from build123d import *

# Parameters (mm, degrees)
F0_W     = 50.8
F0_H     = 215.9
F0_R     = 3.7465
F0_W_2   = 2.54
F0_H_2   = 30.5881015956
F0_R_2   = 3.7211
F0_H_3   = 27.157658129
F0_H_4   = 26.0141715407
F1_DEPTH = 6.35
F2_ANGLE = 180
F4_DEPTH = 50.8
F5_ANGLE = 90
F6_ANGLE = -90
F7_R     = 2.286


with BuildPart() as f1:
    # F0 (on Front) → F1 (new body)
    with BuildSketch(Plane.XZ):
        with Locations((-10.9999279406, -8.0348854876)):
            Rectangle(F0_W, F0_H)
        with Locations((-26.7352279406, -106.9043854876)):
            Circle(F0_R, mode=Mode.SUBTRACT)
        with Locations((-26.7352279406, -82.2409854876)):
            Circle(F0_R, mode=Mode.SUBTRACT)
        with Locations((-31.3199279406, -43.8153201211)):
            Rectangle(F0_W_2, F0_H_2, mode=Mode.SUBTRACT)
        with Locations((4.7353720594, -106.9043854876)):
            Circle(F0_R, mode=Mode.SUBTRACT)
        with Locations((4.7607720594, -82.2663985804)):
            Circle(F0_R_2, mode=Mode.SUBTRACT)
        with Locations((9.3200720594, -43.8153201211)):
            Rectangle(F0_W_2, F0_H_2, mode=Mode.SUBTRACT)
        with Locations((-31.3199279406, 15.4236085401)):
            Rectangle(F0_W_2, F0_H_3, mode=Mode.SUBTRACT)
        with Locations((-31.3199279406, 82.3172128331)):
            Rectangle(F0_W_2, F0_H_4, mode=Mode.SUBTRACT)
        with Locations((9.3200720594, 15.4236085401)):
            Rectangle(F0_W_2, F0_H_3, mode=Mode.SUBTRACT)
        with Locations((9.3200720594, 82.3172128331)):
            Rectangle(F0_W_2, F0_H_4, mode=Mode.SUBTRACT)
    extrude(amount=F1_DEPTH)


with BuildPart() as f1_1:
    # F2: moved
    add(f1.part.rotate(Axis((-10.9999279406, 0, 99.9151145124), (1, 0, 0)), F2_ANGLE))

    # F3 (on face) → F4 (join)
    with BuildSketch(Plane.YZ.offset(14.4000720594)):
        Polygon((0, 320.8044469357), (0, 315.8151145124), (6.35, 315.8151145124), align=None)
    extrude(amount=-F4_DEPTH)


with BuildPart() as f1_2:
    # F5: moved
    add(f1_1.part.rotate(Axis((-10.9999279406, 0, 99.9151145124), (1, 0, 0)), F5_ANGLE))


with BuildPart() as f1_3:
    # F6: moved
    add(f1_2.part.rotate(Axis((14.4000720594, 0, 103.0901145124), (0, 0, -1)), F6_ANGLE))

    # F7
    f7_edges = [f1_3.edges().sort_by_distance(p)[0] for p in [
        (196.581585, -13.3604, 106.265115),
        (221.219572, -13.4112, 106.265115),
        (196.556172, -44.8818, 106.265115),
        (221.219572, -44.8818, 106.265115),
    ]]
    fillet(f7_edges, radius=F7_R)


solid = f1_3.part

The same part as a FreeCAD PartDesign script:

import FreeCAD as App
import Part
import Sketcher
Q = App.Units.Quantity


def edges_at(feature, points):
    """Names of the edges that pass closest to the given points."""
    edges = feature.Shape.Edges
    near = lambda p: min(range(len(edges)), key=lambda i: edges[i].distToShape(Part.Vertex(*p))[0])
    return sorted({f"Edge{near(p) + 1}" for p in points})


def add_polygon(sketch, points):
    """Adds a closed chain of lines whose ends are joined by coincident constraints."""
    first, n = sketch.GeometryCount, len(points)
    for a, b in zip(points, points[1:] + points[:1]):
        sketch.addGeometry(Part.LineSegment(App.Vector(*a, 0), App.Vector(*b, 0)), False)
    for i in range(n):
        sketch.addConstraint(Sketcher.Constraint("Coincident", first + i, 2, first + (i + 1) % n, 1))

doc = App.newDocument("Part")
body = doc.addObject("PartDesign::Body", "Body")

# Sketch on XZ plane
sketch1 = body.newObject("Sketcher::SketchObject", "Sketch")
sketch1.AttachmentSupport = (doc.getObject("XZ_Plane"), [""])
sketch1.MapMode = "FlatFace"
add_polygon(sketch1, [(-36.399928, 99.915115), (-36.399928, -115.984885), (14.400072, -115.984885), (14.400072, 99.915115)])  # lines 0-3
sketch1.addGeometry(Part.Circle(App.Vector(-26.735228, -106.904385, 0), App.Vector(0, 0, 1), 3.7465), False)  # 4
sketch1.addGeometry(Part.Circle(App.Vector(-26.735228, -82.240985, 0), App.Vector(0, 0, 1), 3.7465), False)  # 5
add_polygon(sketch1, [(-30.049928, -59.109371), (-32.589928, -59.109371), (-32.589928, -28.521269), (-30.049928, -28.521269)])  # lines 6-9
sketch1.addGeometry(Part.Circle(App.Vector(4.735372, -106.904385, 0), App.Vector(0, 0, 1), 3.7465), False)  # 10
sketch1.addGeometry(Part.Circle(App.Vector(4.760772, -82.266399, 0), App.Vector(0, 0, 1), 3.7211), False)  # 11
add_polygon(sketch1, [(10.590072, -59.109371), (8.050072, -59.109371), (8.050072, -28.521269), (10.590072, -28.521269)])  # lines 12-15
add_polygon(sketch1, [(-30.049928, 1.844779), (-32.589928, 1.844779), (-32.589928, 29.002438), (-30.049928, 29.002438)])  # lines 16-19
add_polygon(sketch1, [(-30.049928, 69.310127), (-32.589928, 69.310127), (-32.589928, 95.324299), (-30.049928, 95.324299)])  # lines 20-23
add_polygon(sketch1, [(10.590072, 1.844779), (8.050072, 1.844779), (8.050072, 29.002438), (10.590072, 29.002438)])  # lines 24-27
add_polygon(sketch1, [(10.590072, 69.310127), (8.050072, 69.310127), (8.050072, 95.324299), (10.590072, 95.324299)])  # lines 28-31
sketch1.addConstraint([
    Sketcher.Constraint("Vertical", 0),
    Sketcher.Constraint("Horizontal", 1),
    Sketcher.Constraint("Vertical", 2),
    Sketcher.Constraint("Horizontal", 3),
    Sketcher.Constraint("Horizontal", 6),
    Sketcher.Constraint("Vertical", 7),
    Sketcher.Constraint("Horizontal", 8),
    Sketcher.Constraint("Vertical", 9),
    Sketcher.Constraint("Horizontal", 12),
    Sketcher.Constraint("Vertical", 13),
    Sketcher.Constraint("Horizontal", 14),
    Sketcher.Constraint("Vertical", 15),
    Sketcher.Constraint("Horizontal", 16),
    Sketcher.Constraint("Vertical", 17),
    Sketcher.Constraint("Horizontal", 18),
    Sketcher.Constraint("Vertical", 19),
    Sketcher.Constraint("Horizontal", 20),
    Sketcher.Constraint("Vertical", 21),
    Sketcher.Constraint("Horizontal", 22),
    Sketcher.Constraint("Vertical", 23),
    Sketcher.Constraint("Horizontal", 24),
    Sketcher.Constraint("Vertical", 25),
    Sketcher.Constraint("Horizontal", 26),
    Sketcher.Constraint("Vertical", 27),
    Sketcher.Constraint("Horizontal", 28),
    Sketcher.Constraint("Vertical", 29),
    Sketcher.Constraint("Horizontal", 30),
    Sketcher.Constraint("Vertical", 31),
    Sketcher.Constraint("Equal", 4, 5),
    Sketcher.Constraint("Equal", 5, 10),
    Sketcher.Constraint("Horizontal", 4, 3, 10, 3),
    Sketcher.Constraint("Horizontal", 9, 2, 12, 2),
    Sketcher.Constraint("Horizontal", 8, 2, 13, 2),
    Sketcher.Constraint("Horizontal", 19, 2, 24, 2),
    Sketcher.Constraint("Horizontal", 18, 2, 25, 2),
    Sketcher.Constraint("Horizontal", 23, 2, 28, 2),
    Sketcher.Constraint("Horizontal", 22, 2, 29, 2),
    Sketcher.Constraint("Vertical", 4, 3, 5, 3),
    Sketcher.Constraint("Vertical", 7, 2, 16, 2),
    Sketcher.Constraint("Vertical", 9, 2, 18, 2),
    Sketcher.Constraint("Vertical", 17, 2, 20, 2),
    Sketcher.Constraint("Vertical", 19, 2, 22, 2),
    Sketcher.Constraint("Vertical", 13, 2, 24, 2),
    Sketcher.Constraint("Vertical", 15, 2, 26, 2),
    Sketcher.Constraint("Vertical", 25, 2, 28, 2),
    Sketcher.Constraint("Vertical", 27, 2, 30, 2),
    Sketcher.Constraint("Equal", 8, 12),
    Sketcher.Constraint("DistanceX", 1, 1, 1, 2, Q("2 in")),
    Sketcher.Constraint("Diameter", 4, Q("0.295 in")),
    Sketcher.Constraint("Diameter", 11, Q("0.293 in")),
    Sketcher.Constraint("DistanceX", 6, 2, 6, 1, Q("0.1 in")),
    Sketcher.Constraint("DistanceY", 0, 2, 0, 1, Q("8.5 in")),
    Sketcher.Constraint("DistanceX", 9, 2, 12, 2, Q("1.5 in")),
    Sketcher.Constraint("DistanceX", 5, 3, 11, 3, Q("1.24 in")),
    Sketcher.Constraint("DistanceX", 0, 2, 6, 2, Q("0.15 in")),
    Sketcher.Constraint("DistanceY", 4, 3, 5, 3, Q("0.971 in")),
    Sketcher.Constraint("DistanceX", 4, 3, 10, 3, Q("1.239 in")),
    Sketcher.Constraint("DistanceY", 7, 1, 7, 2, Q("30.588102 mm")),
    Sketcher.Constraint("DistanceX", 0, 2, 4, 3, Q("0.3805 in")),
    Sketcher.Constraint("DistanceY", 0, 2, 4, 3, Q("0.3575 in")),
    Sketcher.Constraint("DistanceY", 17, 1, 17, 2, Q("27.157658 mm")),
    Sketcher.Constraint("DistanceY", 21, 1, 21, 2, Q("26.014172 mm")),
    Sketcher.Constraint("DistanceY", 11, 3, -1, 1, Q("82.266399 mm")),
    Sketcher.Constraint("DistanceY", -1, 1, 21, 2, Q("95.324299 mm")),
    Sketcher.Constraint("DistanceY", 6, 2, -1, 1, Q("59.109371 mm")),
    Sketcher.Constraint("DistanceY", -1, 1, 16, 2, Q("1.844779 mm")),
    Sketcher.Constraint("DistanceX", 4, 3, -1, 1, Q("26.735228 mm")),
    Sketcher.Constraint("DistanceY", 4, 3, -1, 1, Q("106.904385 mm")),
])
pad1 = body.newObject("PartDesign::Pad", "Pad")
pad1.Profile = sketch1
pad1.Length = Q("0.25 in")
body2 = doc.addObject("PartDesign::Body", "Body001")
doc.recompute()

body.Placement = App.Placement(App.Vector(0, 0, 199.830229), App.Rotation(App.Vector(1, 0, 0), 180))
boolean = body2.newObject("PartDesign::Boolean", "Boolean")
boolean.Type = "Fuse"
boolean.addObjects([body])

# Sketch on YZ plane
sketch2 = body2.newObject("Sketcher::SketchObject", "Sketch001")
sketch2.AttachmentSupport = (doc.getObject("YZ_Plane001"), [""])
sketch2.MapMode = "FlatFace"
sketch2.AttachmentOffset = App.Placement(App.Vector(0, 0, 14.400072), App.Rotation())
add_polygon(sketch2, [(0, 320.804447), (0, 315.815115), (6.35, 315.815115)])  # lines 0-2
sketch2.addConstraint([
    Sketcher.Constraint("Vertical", 0),
    Sketcher.Constraint("Horizontal", 1),
    Sketcher.Constraint("PointOnObject", 0, 2, -2),
    Sketcher.Constraint("DistanceX", 1, 1, 1, 2, Q("0.25 in")),
    Sketcher.Constraint("Distance", 2, Q("8.075639 mm")),
    Sketcher.Constraint("DistanceY", -1, 1, 0, 2, Q("315.815115 mm")),
])
pad2 = body2.newObject("PartDesign::Pad", "Pad001")
pad2.Profile = sketch2
pad2.Length = Q("2 in")
pad2.Reversed = True
body3 = doc.addObject("PartDesign::Body", "Body002")
doc.recompute()

body2.Placement = App.Placement(App.Vector(0, 99.915115, 99.915115), App.Rotation(App.Vector(1, 0, 0), 90))
boolean2 = body3.newObject("PartDesign::Boolean", "Boolean001")
boolean2.Type = "Fuse"
boolean2.addObjects([body2])
body4 = doc.addObject("PartDesign::Body", "Body003")
doc.recompute()

body3.Placement = App.Placement(App.Vector(14.400072, -14.400072, 0), App.Rotation(App.Vector(0, 0, -1), 270))
boolean3 = body4.newObject("PartDesign::Boolean", "Boolean002")
boolean3.Type = "Fuse"
boolean3.addObjects([body3])
doc.recompute()

fillet = body4.newObject("PartDesign::Fillet", "Fillet")
fillet.Base = (boolean3, edges_at(boolean3, [
    (196.582, -13.36, 106.265),
    (221.22, -13.411, 106.265),
    (196.556, -44.882, 106.265),
    (221.22, -44.882, 106.265),
]))
fillet.Radius = Q("0.09 in")

doc.recompute()
